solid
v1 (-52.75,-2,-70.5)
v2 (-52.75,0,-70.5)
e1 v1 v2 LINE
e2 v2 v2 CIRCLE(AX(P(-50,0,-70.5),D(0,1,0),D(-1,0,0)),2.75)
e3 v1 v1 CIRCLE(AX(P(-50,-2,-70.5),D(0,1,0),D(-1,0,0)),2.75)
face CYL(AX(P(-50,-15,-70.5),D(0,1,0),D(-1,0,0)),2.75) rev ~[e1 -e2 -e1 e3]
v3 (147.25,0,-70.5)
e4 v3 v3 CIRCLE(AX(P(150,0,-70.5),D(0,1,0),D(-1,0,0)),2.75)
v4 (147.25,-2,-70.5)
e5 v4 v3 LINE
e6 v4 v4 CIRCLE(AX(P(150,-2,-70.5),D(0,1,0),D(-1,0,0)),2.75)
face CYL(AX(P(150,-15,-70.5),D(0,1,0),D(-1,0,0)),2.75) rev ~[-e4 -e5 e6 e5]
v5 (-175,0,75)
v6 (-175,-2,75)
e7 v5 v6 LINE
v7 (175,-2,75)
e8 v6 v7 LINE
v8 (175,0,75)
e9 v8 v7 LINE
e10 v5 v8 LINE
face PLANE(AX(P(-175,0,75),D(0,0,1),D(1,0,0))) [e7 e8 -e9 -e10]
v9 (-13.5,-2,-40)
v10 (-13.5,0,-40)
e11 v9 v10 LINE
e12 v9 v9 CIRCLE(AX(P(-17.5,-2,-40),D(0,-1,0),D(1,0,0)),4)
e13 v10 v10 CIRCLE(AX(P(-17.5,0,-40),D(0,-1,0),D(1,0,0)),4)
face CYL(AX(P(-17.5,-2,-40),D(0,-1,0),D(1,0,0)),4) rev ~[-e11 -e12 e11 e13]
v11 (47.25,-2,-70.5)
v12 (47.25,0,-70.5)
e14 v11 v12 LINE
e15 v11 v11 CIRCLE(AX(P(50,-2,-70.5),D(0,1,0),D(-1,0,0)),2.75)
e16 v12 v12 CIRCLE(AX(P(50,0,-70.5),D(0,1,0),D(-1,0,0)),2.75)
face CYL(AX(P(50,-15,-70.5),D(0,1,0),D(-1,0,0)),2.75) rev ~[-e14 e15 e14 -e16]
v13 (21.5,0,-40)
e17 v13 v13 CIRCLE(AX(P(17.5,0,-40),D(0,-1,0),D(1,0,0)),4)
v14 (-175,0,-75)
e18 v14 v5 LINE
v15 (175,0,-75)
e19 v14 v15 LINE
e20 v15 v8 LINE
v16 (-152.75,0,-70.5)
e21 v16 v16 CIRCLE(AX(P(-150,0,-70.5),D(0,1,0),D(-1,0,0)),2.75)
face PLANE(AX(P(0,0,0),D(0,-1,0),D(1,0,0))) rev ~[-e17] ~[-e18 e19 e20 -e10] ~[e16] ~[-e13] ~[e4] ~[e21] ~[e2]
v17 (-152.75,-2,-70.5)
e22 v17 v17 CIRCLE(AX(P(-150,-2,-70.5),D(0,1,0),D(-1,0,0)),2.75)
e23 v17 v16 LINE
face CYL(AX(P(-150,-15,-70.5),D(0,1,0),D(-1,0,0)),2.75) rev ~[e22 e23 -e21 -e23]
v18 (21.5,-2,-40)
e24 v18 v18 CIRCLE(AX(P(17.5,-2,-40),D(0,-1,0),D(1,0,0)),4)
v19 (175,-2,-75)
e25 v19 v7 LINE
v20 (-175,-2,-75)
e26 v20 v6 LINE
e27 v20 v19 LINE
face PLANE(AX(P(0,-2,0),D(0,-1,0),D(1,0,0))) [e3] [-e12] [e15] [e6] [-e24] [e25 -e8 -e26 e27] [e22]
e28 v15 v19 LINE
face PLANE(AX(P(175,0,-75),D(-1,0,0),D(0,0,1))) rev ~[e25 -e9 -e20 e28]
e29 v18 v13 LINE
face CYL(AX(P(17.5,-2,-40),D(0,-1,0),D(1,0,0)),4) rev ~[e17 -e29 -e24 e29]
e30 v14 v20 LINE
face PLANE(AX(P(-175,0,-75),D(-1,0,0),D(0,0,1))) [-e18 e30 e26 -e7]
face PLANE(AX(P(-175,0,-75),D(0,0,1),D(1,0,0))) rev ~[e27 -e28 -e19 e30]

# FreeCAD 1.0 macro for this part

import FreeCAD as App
import Part
import Sketcher
from FreeCAD import Vector

doc = App.newDocument("Part")
body = doc.addObject("PartDesign::Body", "Body")

sketch1 = body.newObject("Sketcher::SketchObject", "Sketch")
sketch1.AttachmentSupport = (doc.getObject("XZ_Plane"), [""])
sketch1.MapMode = "FlatFace"
sketch1.addGeometry([
    Part.LineSegment(Vector(-175, 75, 0), Vector(-175, -75, 0)),
    Part.LineSegment(Vector(-175, -75, 0), Vector(175, -75, 0)),
    Part.LineSegment(Vector(175, -75, 0), Vector(175, 75, 0)),
    Part.LineSegment(Vector(175, 75, 0), Vector(-175, 75, 0)),
], False)
sketch1.addConstraint([
    Sketcher.Constraint("Coincident", 0, 2, 1, 1),
    Sketcher.Constraint("Coincident", 1, 2, 2, 1),
    Sketcher.Constraint("Coincident", 2, 2, 3, 1),
    Sketcher.Constraint("Coincident", 3, 2, 0, 1),
    Sketcher.Constraint("Vertical", 0),
    Sketcher.Constraint("Horizontal", 1),
    Sketcher.Constraint("Vertical", 2),
    Sketcher.Constraint("Horizontal", 3),
    Sketcher.Constraint("Symmetric", 0, 2, 2, 2, -1, 1),
    Sketcher.Constraint("DistanceX", 1, 1, 1, 2, 350.0),
    Sketcher.Constraint("DistanceY", 0, 2, 0, 1, 150.0),
])
pad1 = body.newObject("PartDesign::Pad", "Pad")
pad1.Profile = sketch1
pad1.Length = 2

sketch2 = body.newObject("Sketcher::SketchObject", "Sketch001")
sketch2.AttachmentSupport = (doc.getObject("XZ_Plane"), [""])
sketch2.MapMode = "FlatFace"
sketch2.AttachmentOffset = App.Placement(Vector(0, 0, 2), App.Rotation())
sketch2.addGeometry([
    Part.Circle(Vector(-17.5, -40, 0), Vector(0, 0, 1), 4),
    Part.Circle(Vector(17.5, -40, 0), Vector(0, 0, 1), 4),
], False)
sketch2.addConstraint([
    Sketcher.Constraint("Equal", 0, 1),
    Sketcher.Constraint("Symmetric", 0, 3, 1, 3, -2),
    Sketcher.Constraint("Diameter", 0, 8.0),
    Sketcher.Constraint("DistanceY", 0, 3, -1, 1, 40.0),
    Sketcher.Constraint("DistanceX", 0, 3, 1, 3, 35.0),
])
pocket1 = body.newObject("PartDesign::Pocket", "Pocket")
pocket1.Profile = sketch2
pocket1.Length = 25

sketch3 = body.newObject("Sketcher::SketchObject", "Sketch002")
sketch3.AttachmentSupport = (doc.getObject("XZ_Plane"), [""])
sketch3.MapMode = "FlatFace"
sketch3.AttachmentOffset = App.Placement(Vector(0, 0, 2), App.Rotation())
sketch3.addGeometry([
    Part.Circle(Vector(-150, -70.5, 0), Vector(0, 0, 1), 2.75),
    Part.Circle(Vector(-50, -70.5, 0), Vector(0, 0, 1), 2.75),
    Part.Circle(Vector(50, -70.5, 0), Vector(0, 0, 1), 2.75),
    Part.Circle(Vector(150, -70.5, 0), Vector(0, 0, 1), 2.75),
], False)
sketch3.addConstraint([
    Sketcher.Constraint("Equal", 0, 1),
    Sketcher.Constraint("Equal", 1, 2),
    Sketcher.Constraint("Equal", 2, 3),
    Sketcher.Constraint("Symmetric", 1, 3, 2, 3, -2),
    Sketcher.Constraint("Symmetric", 0, 3, 3, 3, -2),
    Sketcher.Constraint("Horizontal", 0, 3, 1, 3),
    Sketcher.Constraint("Diameter", 0, 5.5),
    Sketcher.Constraint("DistanceX", 0, 3, -1, 1, 150.0),
    Sketcher.Constraint("DistanceX", 1, 3, -1, 1, 50.0),
    Sketcher.Constraint("DistanceY", 0, 3, -1, 1, 70.5),
])
doc.recompute()
hole = body.newObject("PartDesign::Hole", "Hole")
hole.Profile = sketch3
hole.ThreadType = "None"
hole.Diameter = 5.5
hole.DepthType = "Dimension"
hole.Depth = 13
hole.DrillPoint = "Angled"
hole.DrillPointAngle = 118

doc.recompute()
